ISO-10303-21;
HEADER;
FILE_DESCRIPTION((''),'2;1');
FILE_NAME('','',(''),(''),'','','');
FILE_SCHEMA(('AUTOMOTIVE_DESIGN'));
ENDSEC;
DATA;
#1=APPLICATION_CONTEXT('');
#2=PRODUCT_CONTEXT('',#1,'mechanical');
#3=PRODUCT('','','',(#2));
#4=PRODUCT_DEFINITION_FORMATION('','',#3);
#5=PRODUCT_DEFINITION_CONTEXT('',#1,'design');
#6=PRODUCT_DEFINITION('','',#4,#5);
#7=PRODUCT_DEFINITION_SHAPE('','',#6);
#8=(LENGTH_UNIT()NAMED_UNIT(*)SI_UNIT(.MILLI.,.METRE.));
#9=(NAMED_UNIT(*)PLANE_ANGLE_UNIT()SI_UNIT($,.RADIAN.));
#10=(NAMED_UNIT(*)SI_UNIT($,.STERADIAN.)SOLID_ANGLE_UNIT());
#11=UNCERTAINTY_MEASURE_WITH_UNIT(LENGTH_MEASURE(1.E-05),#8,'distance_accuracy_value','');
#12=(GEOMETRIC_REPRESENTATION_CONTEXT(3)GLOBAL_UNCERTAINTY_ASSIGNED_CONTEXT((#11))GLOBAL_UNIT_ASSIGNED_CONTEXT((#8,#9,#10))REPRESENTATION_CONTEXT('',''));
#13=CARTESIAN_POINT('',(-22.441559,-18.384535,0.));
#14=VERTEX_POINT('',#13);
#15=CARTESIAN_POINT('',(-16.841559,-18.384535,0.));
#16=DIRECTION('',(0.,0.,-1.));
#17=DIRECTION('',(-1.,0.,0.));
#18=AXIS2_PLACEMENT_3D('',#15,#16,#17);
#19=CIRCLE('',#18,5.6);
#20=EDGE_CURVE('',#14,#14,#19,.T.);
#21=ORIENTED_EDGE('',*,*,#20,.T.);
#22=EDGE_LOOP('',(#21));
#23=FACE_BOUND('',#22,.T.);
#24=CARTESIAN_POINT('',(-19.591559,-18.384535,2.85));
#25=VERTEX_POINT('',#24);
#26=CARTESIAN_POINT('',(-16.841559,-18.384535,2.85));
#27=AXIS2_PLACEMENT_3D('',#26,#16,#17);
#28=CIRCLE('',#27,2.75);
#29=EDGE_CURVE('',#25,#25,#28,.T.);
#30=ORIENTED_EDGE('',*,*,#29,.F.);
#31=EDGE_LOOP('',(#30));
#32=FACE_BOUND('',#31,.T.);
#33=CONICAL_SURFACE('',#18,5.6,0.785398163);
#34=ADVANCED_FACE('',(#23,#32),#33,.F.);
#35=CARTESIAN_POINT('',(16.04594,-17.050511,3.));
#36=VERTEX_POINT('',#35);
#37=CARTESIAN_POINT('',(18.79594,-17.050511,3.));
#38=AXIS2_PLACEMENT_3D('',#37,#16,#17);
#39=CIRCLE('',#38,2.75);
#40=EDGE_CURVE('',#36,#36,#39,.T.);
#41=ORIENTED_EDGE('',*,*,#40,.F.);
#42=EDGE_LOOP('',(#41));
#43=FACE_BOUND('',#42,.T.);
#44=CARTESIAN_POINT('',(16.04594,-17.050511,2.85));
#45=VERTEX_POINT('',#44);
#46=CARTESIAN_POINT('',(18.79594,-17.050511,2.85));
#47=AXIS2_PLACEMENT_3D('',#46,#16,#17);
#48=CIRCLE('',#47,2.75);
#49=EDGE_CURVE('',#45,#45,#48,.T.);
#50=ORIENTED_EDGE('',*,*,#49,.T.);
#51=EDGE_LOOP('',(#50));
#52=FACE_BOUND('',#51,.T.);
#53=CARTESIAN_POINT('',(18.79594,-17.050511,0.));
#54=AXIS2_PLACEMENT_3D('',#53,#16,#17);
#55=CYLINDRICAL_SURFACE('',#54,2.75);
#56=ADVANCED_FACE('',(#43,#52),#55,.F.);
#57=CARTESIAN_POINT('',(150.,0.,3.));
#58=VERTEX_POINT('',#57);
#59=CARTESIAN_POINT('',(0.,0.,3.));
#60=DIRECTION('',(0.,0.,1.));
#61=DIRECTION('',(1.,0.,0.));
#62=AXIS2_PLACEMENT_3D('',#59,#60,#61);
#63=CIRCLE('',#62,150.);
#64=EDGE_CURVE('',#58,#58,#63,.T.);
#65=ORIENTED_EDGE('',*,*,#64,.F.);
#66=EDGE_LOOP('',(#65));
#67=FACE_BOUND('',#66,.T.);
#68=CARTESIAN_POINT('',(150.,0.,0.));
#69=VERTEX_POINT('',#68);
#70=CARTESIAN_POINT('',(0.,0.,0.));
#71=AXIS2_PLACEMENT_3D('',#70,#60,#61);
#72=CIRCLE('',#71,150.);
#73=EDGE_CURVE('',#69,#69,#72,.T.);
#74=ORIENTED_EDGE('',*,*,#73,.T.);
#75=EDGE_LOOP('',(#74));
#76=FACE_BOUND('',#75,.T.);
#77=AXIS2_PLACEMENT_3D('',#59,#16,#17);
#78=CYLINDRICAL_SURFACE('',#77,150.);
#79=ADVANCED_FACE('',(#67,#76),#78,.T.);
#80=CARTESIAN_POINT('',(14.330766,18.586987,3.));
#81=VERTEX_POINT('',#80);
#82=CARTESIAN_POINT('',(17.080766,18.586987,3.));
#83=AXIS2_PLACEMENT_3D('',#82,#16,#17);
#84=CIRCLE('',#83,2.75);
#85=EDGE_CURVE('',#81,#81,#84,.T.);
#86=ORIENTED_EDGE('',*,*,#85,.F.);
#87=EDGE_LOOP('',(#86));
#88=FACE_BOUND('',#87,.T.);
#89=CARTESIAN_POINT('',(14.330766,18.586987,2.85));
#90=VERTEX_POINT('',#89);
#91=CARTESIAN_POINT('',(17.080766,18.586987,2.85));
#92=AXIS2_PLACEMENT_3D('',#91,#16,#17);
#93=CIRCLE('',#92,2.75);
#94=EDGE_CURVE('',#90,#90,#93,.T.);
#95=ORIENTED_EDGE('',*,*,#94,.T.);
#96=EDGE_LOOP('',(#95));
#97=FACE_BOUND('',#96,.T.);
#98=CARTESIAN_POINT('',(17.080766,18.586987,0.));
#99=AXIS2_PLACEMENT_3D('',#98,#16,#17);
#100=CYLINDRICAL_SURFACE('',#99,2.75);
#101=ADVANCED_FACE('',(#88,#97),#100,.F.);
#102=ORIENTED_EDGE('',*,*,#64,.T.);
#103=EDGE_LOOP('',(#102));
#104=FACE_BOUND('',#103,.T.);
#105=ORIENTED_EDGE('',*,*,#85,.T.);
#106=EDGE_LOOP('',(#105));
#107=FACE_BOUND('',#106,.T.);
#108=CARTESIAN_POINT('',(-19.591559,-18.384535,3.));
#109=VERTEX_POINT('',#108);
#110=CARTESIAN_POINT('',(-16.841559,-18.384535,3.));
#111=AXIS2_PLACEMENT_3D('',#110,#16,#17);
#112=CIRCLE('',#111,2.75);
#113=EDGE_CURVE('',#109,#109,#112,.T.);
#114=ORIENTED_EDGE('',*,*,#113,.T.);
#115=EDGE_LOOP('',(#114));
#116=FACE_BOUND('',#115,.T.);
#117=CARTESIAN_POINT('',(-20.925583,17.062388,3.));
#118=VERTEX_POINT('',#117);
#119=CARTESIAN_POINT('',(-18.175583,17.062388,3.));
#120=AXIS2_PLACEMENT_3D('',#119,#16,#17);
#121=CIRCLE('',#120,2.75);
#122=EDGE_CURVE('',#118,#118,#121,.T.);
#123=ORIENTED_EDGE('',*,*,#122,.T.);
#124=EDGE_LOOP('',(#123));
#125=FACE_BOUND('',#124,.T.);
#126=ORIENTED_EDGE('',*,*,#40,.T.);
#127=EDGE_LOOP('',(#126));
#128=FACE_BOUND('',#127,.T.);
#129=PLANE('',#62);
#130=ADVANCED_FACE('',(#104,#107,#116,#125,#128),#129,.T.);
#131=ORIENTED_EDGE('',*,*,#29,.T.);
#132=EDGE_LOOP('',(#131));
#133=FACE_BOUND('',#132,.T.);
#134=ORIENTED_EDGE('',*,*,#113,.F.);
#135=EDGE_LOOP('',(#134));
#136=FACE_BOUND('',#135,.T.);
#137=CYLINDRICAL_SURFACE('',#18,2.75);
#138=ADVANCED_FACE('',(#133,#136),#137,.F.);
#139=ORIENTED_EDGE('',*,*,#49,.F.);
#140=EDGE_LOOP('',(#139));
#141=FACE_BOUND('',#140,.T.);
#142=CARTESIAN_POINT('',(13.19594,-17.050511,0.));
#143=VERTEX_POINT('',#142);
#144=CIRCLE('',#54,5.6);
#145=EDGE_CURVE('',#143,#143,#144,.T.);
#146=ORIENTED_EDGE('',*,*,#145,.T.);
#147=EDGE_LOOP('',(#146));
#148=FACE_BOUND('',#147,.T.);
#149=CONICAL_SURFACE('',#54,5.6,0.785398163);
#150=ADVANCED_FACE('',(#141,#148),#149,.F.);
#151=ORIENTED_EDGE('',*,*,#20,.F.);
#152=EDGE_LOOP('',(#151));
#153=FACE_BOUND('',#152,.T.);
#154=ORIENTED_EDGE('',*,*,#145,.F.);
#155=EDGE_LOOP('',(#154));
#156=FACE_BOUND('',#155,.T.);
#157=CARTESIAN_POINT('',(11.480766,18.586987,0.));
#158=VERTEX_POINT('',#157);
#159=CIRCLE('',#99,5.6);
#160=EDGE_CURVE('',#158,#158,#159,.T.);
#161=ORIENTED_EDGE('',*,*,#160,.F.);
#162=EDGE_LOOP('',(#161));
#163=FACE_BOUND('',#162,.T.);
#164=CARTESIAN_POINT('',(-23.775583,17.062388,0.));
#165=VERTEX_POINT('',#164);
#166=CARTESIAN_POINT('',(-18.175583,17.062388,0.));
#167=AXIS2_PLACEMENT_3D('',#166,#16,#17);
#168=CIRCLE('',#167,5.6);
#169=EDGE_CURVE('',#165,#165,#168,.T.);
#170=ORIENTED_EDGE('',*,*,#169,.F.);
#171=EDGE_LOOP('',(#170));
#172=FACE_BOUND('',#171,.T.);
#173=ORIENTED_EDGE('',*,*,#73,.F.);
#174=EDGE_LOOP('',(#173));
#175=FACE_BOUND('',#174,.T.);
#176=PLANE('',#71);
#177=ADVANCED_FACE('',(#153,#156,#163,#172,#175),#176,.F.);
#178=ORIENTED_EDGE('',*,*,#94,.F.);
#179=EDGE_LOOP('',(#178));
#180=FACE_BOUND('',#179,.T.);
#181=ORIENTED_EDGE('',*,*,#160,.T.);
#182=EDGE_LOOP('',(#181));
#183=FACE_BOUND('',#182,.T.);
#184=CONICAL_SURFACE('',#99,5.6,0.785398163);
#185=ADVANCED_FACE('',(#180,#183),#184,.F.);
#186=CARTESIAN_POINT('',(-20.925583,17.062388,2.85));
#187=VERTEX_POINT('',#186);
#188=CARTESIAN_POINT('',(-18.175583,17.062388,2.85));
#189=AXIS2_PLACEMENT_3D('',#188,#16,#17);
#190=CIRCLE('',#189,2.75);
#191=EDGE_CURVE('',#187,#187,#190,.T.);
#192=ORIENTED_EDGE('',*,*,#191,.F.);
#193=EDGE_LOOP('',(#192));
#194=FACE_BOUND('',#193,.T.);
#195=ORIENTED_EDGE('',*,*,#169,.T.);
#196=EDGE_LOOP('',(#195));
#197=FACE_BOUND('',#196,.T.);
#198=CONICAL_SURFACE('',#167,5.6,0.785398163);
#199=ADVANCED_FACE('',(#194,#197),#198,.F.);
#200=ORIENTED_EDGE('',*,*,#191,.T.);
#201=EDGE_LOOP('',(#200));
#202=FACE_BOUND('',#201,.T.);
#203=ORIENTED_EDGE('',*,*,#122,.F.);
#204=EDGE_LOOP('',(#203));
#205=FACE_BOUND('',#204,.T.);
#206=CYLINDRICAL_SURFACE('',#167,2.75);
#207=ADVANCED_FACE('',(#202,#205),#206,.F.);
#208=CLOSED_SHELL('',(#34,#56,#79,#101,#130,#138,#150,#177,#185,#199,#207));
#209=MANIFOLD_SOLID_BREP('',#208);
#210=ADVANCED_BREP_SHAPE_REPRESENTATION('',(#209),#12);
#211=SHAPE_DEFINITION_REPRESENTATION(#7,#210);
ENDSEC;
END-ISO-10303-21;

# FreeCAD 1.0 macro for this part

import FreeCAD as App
import Part
import Sketcher

V = App.Vector
Q = App.Units.Quantity


def add_polygon(sketch, points):
    """Adds a closed chain of lines whose ends are joined by coincident constraints."""
    first, n = sketch.GeometryCount, len(points)
    for a, b in zip(points, points[1:] + points[:1]):
        sketch.addGeometry(Part.LineSegment(App.Vector(*a, 0), App.Vector(*b, 0)), False)
    for i in range(n):
        sketch.addConstraint(Sketcher.Constraint("Coincident", first + i, 2, first + (i + 1) % n, 1))

doc = App.newDocument("Part")
body = doc.addObject("PartDesign::Body", "Body")

# Sketch on XY plane
sketch1 = body.newObject("Sketcher::SketchObject", "Sketch")
sketch1.AttachmentSupport = (doc.getObject("XY_Plane"), [""])
sketch1.MapMode = "FlatFace"
sketch1.addGeometry(Part.Circle(V(0, 0, 0), V(0, 0, 1), 150), False)
sketch1.addConstraint(Sketcher.Constraint("Coincident", 0, 3, -1, 1))
sketch1.addConstraint(Sketcher.Constraint("Diameter", 0, 300.0))
pad1 = body.newObject("PartDesign::Pad", "Pad")
pad1.Profile = sketch1
pad1.Length = 3

# Sketch on YZ plane
sketch2 = body.newObject("Sketcher::SketchObject", "Sketch001")
sketch2.AttachmentSupport = (doc.getObject("YZ_Plane"), [""])
sketch2.MapMode = "FlatFace"
sketch2.AttachmentOffset = App.Placement(V(0, 0, 17.080766), App.Rotation())
add_polygon(sketch2, [(18.59, 3), (18.59, 0), (24.19, 0), (21.34, 2.85), (21.34, 3)])  # lines 0-4
sketch2.addGeometry(Part.LineSegment(V(18.59, 0, 0), V(18.59, 3, 0)), True)  # axis
sketch2.addConstraint(Sketcher.Constraint("Vertical", 0))
sketch2.addConstraint(Sketcher.Constraint("Horizontal", 1))
sketch2.addConstraint(Sketcher.Constraint("Vertical", 3))
sketch2.addConstraint(Sketcher.Constraint("Horizontal", 4))
sketch2.addConstraint(Sketcher.Constraint("Vertical", 5))
sketch2.addConstraint(Sketcher.Constraint("Coincident", 5, 1, 0, 2))
sketch2.addConstraint(Sketcher.Constraint("PointOnObject", 0, 2, -1))
sketch2.addConstraint(Sketcher.Constraint("Horizontal", 3, 2, 5, 2))
sketch2.addConstraint(Sketcher.Constraint("DistanceY", 0, 2, 0, 1, 3.0))
sketch2.addConstraint(Sketcher.Constraint("Angle", 2, Q("135 deg")))
sketch2.addConstraint(Sketcher.Constraint("DistanceX", 1, 1, 1, 2, 5.6))
sketch2.addConstraint(Sketcher.Constraint("DistanceX", 4, 2, 4, 1, 2.75))
sketch2.addConstraint(Sketcher.Constraint("DistanceX", -1, 1, 0, 2, 18.586987))
groove = body.newObject("PartDesign::Groove", "Groove")
groove.Profile = sketch2
groove.ReferenceAxis = (sketch2, ["Axis0"])
groove.Angle = 360
doc.recompute()

datumline = body.newObject("PartDesign::Line", "DatumLine")
datumline.Placement = App.Placement(V(0, 0, 0), App.Rotation(V(0, 0, 1), V(-0.99906632, -0.043202868, 0)))
linearpattern = body.newObject("PartDesign::LinearPattern", "LinearPattern")
linearpattern.Originals = [groove]
linearpattern.Direction = (datumline, [""])
linearpattern.Mode = "offset"
linearpattern.Offset = 35.289298
linearpattern.Occurrences = 2
body.Tip = linearpattern
doc.recompute()

datumline2 = body.newObject("PartDesign::Line", "DatumLine001")
datumline2.Placement = App.Placement(V(0, 0, 0), App.Rotation(V(0, 0, 1), V(-0.676068537, -0.736838743, 0)))
linearpattern2 = body.newObject("PartDesign::LinearPattern", "LinearPattern001")
linearpattern2.Originals = [groove]
linearpattern2.Direction = (datumline2, [""])
linearpattern2.Mode = "offset"
linearpattern2.Offset = 50.175867
linearpattern2.Occurrences = 2
body.Tip = linearpattern2
doc.recompute()

datumline3 = body.newObject("PartDesign::Line", "DatumLine002")
datumline3.Placement = App.Placement(V(0, 0, 0), App.Rotation(V(0, 0, 1), V(0.048072698, -0.998843839, 0)))
linearpattern3 = body.newObject("PartDesign::LinearPattern", "LinearPattern002")
linearpattern3.Originals = [groove]
linearpattern3.Direction = (datumline3, [""])
linearpattern3.Mode = "offset"
linearpattern3.Offset = 35.678749
linearpattern3.Occurrences = 2
body.Tip = linearpattern3

doc.recompute()
